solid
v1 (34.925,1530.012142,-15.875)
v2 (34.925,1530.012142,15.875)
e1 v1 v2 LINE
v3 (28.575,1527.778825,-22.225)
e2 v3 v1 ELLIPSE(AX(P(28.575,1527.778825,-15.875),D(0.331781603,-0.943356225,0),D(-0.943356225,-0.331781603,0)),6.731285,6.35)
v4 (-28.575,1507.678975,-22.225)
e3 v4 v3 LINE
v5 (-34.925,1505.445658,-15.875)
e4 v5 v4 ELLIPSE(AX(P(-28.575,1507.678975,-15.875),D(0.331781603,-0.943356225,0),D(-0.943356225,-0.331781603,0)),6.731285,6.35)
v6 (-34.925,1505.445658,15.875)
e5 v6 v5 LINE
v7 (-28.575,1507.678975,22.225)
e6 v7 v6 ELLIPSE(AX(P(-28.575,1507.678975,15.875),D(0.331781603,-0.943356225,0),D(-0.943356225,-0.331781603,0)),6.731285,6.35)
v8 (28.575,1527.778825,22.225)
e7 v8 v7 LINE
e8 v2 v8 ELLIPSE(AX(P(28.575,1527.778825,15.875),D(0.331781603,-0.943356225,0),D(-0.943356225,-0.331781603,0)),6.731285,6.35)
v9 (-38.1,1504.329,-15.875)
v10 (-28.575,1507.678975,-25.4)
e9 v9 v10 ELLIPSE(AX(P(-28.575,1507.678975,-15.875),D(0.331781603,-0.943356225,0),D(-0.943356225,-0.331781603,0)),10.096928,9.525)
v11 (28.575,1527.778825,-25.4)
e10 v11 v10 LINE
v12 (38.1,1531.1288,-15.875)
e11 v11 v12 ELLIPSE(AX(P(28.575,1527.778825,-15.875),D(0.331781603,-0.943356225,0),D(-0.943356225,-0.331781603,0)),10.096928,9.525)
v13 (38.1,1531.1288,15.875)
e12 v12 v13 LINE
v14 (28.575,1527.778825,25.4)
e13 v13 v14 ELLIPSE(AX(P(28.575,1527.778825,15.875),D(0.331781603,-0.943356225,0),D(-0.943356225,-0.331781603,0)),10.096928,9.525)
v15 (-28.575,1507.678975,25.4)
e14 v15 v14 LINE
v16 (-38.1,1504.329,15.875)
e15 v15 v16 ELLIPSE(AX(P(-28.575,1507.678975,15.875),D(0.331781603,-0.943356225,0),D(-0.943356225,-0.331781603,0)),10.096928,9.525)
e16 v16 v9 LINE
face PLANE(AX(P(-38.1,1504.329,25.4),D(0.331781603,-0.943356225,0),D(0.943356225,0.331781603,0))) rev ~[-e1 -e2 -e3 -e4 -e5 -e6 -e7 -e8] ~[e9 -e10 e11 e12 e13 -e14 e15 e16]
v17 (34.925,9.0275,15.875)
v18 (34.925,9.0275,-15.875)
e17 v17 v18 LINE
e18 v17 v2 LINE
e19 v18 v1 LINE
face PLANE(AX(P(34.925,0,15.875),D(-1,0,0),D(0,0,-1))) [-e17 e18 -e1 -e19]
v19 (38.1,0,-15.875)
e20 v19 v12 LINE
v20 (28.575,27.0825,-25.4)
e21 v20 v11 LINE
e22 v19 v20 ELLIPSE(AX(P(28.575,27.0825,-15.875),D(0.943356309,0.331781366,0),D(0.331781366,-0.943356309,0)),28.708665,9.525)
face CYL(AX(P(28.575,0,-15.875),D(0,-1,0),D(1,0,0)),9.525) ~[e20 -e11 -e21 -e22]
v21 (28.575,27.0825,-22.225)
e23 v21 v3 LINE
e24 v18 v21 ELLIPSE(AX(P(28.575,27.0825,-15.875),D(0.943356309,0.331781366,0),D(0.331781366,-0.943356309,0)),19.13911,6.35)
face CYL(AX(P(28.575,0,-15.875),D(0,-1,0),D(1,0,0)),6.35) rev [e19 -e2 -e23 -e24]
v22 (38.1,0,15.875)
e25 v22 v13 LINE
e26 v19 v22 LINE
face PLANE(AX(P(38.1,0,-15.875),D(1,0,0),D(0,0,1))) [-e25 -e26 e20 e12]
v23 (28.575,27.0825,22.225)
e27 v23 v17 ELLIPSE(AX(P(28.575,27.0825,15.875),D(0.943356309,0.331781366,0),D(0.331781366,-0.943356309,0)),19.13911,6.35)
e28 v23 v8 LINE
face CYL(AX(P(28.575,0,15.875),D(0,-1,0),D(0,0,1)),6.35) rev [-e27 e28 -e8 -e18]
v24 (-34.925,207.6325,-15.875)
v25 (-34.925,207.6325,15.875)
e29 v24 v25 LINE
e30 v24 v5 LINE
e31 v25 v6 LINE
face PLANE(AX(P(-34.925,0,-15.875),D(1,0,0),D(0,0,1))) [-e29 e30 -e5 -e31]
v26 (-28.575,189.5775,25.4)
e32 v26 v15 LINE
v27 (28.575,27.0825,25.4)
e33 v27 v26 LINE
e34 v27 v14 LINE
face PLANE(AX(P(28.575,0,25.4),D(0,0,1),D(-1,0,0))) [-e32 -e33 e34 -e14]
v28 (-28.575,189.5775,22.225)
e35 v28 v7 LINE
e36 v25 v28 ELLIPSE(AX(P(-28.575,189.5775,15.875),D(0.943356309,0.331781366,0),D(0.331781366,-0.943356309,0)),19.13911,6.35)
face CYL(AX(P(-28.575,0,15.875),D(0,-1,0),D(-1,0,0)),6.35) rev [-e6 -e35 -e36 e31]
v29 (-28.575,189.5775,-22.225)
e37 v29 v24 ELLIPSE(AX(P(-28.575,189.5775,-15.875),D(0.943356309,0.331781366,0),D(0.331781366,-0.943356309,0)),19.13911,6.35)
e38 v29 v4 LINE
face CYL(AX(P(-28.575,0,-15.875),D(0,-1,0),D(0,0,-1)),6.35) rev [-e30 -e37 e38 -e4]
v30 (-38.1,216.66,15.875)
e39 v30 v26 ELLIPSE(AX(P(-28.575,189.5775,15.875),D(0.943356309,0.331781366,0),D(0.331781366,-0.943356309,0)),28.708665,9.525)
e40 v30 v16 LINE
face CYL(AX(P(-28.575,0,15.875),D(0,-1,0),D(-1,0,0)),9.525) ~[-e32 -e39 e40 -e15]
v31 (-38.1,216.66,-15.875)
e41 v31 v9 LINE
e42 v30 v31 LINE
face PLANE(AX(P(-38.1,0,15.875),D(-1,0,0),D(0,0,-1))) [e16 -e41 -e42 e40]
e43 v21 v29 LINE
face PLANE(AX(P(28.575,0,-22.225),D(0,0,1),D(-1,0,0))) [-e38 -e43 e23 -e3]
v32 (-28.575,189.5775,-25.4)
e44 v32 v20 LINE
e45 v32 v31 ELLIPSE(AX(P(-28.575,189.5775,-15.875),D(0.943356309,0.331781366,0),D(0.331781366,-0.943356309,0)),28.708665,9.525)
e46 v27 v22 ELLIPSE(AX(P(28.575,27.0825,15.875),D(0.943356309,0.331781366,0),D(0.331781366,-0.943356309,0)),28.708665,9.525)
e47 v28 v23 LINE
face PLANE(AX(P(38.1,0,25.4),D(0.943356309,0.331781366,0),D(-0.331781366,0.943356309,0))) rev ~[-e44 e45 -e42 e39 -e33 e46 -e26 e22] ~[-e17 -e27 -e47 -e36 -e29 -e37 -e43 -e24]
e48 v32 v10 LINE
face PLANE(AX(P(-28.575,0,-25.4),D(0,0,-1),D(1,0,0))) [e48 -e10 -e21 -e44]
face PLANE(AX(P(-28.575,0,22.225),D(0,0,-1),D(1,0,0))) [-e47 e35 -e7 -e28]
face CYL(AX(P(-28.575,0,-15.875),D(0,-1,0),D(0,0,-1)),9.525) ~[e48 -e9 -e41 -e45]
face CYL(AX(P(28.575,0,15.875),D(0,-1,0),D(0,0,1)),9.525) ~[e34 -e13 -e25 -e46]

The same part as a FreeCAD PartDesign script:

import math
import FreeCAD as App
import Part
import Sketcher
from FreeCAD import Vector
Q = App.Units.Quantity

doc = App.newDocument("Part")
body = doc.addObject("PartDesign::Body", "Body")

# Sketch on XZ plane
sketch1 = body.newObject("Sketcher::SketchObject", "Sketch")
sketch1.AttachmentSupport = (doc.getObject("XZ_Plane"), [""])
sketch1.MapMode = "FlatFace"
sketch1.addGeometry(Part.LineSegment(Vector(-29, 25, 0), Vector(29, 25, 0)), False)
sketch1.addGeometry(Part.ArcOfCircle(Part.Circle(Vector(29, 16, 0), Vector(0, 0, 1), 10), math.radians(0), math.radians(90)), False)
sketch1.addGeometry(Part.LineSegment(Vector(38, 16, 0), Vector(38, -16, 0)), False)
sketch1.addGeometry(Part.ArcOfCircle(Part.Circle(Vector(29, -16, 0), Vector(0, 0, 1), 10), math.radians(-90), math.radians(0)), False)
sketch1.addGeometry(Part.LineSegment(Vector(29, -25, 0), Vector(-29, -25, 0)), False)
sketch1.addGeometry(Part.ArcOfCircle(Part.Circle(Vector(-29, -16, 0), Vector(0, 0, 1), 10), math.radians(180), math.radians(270)), False)
sketch1.addGeometry(Part.LineSegment(Vector(-38, -16, 0), Vector(-38, 16, 0)), False)
sketch1.addGeometry(Part.ArcOfCircle(Part.Circle(Vector(-29, 16, 0), Vector(0, 0, 1), 10), math.radians(90), math.radians(180)), False)
sketch1.addGeometry(Part.LineSegment(Vector(-35, 16, 0), Vector(-35, -16, 0)), False)
sketch1.addGeometry(Part.ArcOfCircle(Part.Circle(Vector(-29, -16, 0), Vector(0, 0, 1), 6), math.radians(180), math.radians(270)), False)
sketch1.addGeometry(Part.LineSegment(Vector(-29, -22, 0), Vector(29, -22, 0)), False)
sketch1.addGeometry(Part.ArcOfCircle(Part.Circle(Vector(29, -16, 0), Vector(0, 0, 1), 6), math.radians(-90), math.radians(0)), False)
sketch1.addGeometry(Part.LineSegment(Vector(35, -16, 0), Vector(35, 16, 0)), False)
sketch1.addGeometry(Part.ArcOfCircle(Part.Circle(Vector(29, 16, 0), Vector(0, 0, 1), 6), math.radians(0), math.radians(90)), False)
sketch1.addGeometry(Part.LineSegment(Vector(29, 22, 0), Vector(-29, 22, 0)), False)
sketch1.addGeometry(Part.ArcOfCircle(Part.Circle(Vector(-29, 16, 0), Vector(0, 0, 1), 6), math.radians(90), math.radians(180)), False)
sketch1.addConstraint(Sketcher.Constraint("Tangent", 0, 2, 1, 2))
sketch1.addConstraint(Sketcher.Constraint("Tangent", 1, 1, 2, 1))
sketch1.addConstraint(Sketcher.Constraint("Tangent", 2, 2, 3, 2))
sketch1.addConstraint(Sketcher.Constraint("Tangent", 3, 1, 4, 1))
sketch1.addConstraint(Sketcher.Constraint("Tangent", 4, 2, 5, 2))
sketch1.addConstraint(Sketcher.Constraint("Tangent", 5, 1, 6, 1))
sketch1.addConstraint(Sketcher.Constraint("Tangent", 6, 2, 7, 2))
sketch1.addConstraint(Sketcher.Constraint("Tangent", 7, 1, 0, 1))
sketch1.addConstraint(Sketcher.Constraint("Tangent", 8, 2, 9, 1))
sketch1.addConstraint(Sketcher.Constraint("Tangent", 9, 2, 10, 1))
sketch1.addConstraint(Sketcher.Constraint("Tangent", 10, 2, 11, 1))
sketch1.addConstraint(Sketcher.Constraint("Tangent", 11, 2, 12, 1))
sketch1.addConstraint(Sketcher.Constraint("Tangent", 12, 2, 13, 1))
sketch1.addConstraint(Sketcher.Constraint("Tangent", 13, 2, 14, 1))
sketch1.addConstraint(Sketcher.Constraint("Tangent", 14, 2, 15, 1))
sketch1.addConstraint(Sketcher.Constraint("Tangent", 15, 2, 8, 1))
sketch1.addConstraint(Sketcher.Constraint("Horizontal", 0))
sketch1.addConstraint(Sketcher.Constraint("Vertical", 2))
sketch1.addConstraint(Sketcher.Constraint("Horizontal", 4))
sketch1.addConstraint(Sketcher.Constraint("Vertical", 6))
sketch1.addConstraint(Sketcher.Constraint("Vertical", 8))
sketch1.addConstraint(Sketcher.Constraint("Horizontal", 10))
sketch1.addConstraint(Sketcher.Constraint("Vertical", 12))
sketch1.addConstraint(Sketcher.Constraint("Horizontal", 14))
sketch1.addConstraint(Sketcher.Constraint("Coincident", 9, 3, 5, 3))
sketch1.addConstraint(Sketcher.Constraint("Coincident", 11, 3, 3, 3))
sketch1.addConstraint(Sketcher.Constraint("Coincident", 13, 3, 1, 3))
sketch1.addConstraint(Sketcher.Constraint("Equal", 1, 3))
sketch1.addConstraint(Sketcher.Constraint("Equal", 3, 5))
sketch1.addConstraint(Sketcher.Constraint("Equal", 5, 7))
sketch1.addConstraint(Sketcher.Constraint("Equal", 13, 15))
sketch1.addConstraint(Sketcher.Constraint("Symmetric", 1, 3, 5, 3, -1, 1))
sketch1.addConstraint(Sketcher.Constraint("Radius", 1, Q("0.375 in")))
sketch1.addConstraint(Sketcher.Constraint("Radius", 9, Q("0.25 in")))
sketch1.addConstraint(Sketcher.Constraint("DistanceY", -1, 1, 0, 2, Q("1 in")))
sketch1.addConstraint(Sketcher.Constraint("DistanceX", 0, 1, 0, 2, Q("2.25 in")))
pad1 = body.newObject("PartDesign::Pad", "Pad")
pad1.Profile = sketch1
pad1.Length = 1531.1288
pad1.Reversed = True

# Sketch on XY plane
sketch2 = body.newObject("Sketcher::SketchObject", "Sketch001")
sketch2.AttachmentSupport = (doc.getObject("XY_Plane"), [""])
sketch2.MapMode = "FlatFace"
sketch2.AttachmentOffset = App.Placement(Vector(0, 0, 1 * 25.4), App.Rotation())
sketch2.addGeometry(Part.LineSegment(Vector(-38, 0, 0), Vector(38, 0, 0)), False)
sketch2.addGeometry(Part.LineSegment(Vector(38, 0, 0), Vector(-38, 217, 0)), False)
sketch2.addGeometry(Part.LineSegment(Vector(-38, 217, 0), Vector(-38, 0, 0)), False)
sketch2.addGeometry(Part.LineSegment(Vector(-38, 1504, 0), Vector(38, 1531, 0)), False)
sketch2.addGeometry(Part.LineSegment(Vector(38, 1531, 0), Vector(-38, 1531, 0)), False)
sketch2.addGeometry(Part.LineSegment(Vector(-38, 1531, 0), Vector(-38, 1504, 0)), False)
sketch2.addConstraint(Sketcher.Constraint("Coincident", 0, 2, 1, 1))
sketch2.addConstraint(Sketcher.Constraint("Coincident", 1, 2, 2, 1))
sketch2.addConstraint(Sketcher.Constraint("Coincident", 2, 2, 0, 1))
sketch2.addConstraint(Sketcher.Constraint("Coincident", 3, 2, 4, 1))
sketch2.addConstraint(Sketcher.Constraint("Coincident", 4, 2, 5, 1))
sketch2.addConstraint(Sketcher.Constraint("Coincident", 5, 2, 3, 1))
sketch2.addConstraint(Sketcher.Constraint("Horizontal", 0))
sketch2.addConstraint(Sketcher.Constraint("Vertical", 2))
sketch2.addConstraint(Sketcher.Constraint("Horizontal", 4))
sketch2.addConstraint(Sketcher.Constraint("Vertical", 5))
sketch2.addConstraint(Sketcher.Constraint("Symmetric", 0, 2, 2, 2, -1, 1))
sketch2.addConstraint(Sketcher.Constraint("Perpendicular", 1, 3))
sketch2.addConstraint(Sketcher.Constraint("Vertical", 0, 2, 3, 2))
sketch2.addConstraint(Sketcher.Constraint("Vertical", 2, 2, 4, 2))
sketch2.addConstraint(Sketcher.Constraint("DistanceX", 0, 1, 0, 2, Q("3 in")))
sketch2.addConstraint(Sketcher.Constraint("DistanceY", 5, 2, 5, 1, Q("1.0551 in")))
sketch2.addConstraint(Sketcher.Constraint("DistanceY", -1, 1, 3, 2, 1531.1288))
pocket1 = body.newObject("PartDesign::Pocket", "Pocket")
pocket1.Profile = sketch2
pocket1.Type = "ThroughAll"

doc.recompute()
